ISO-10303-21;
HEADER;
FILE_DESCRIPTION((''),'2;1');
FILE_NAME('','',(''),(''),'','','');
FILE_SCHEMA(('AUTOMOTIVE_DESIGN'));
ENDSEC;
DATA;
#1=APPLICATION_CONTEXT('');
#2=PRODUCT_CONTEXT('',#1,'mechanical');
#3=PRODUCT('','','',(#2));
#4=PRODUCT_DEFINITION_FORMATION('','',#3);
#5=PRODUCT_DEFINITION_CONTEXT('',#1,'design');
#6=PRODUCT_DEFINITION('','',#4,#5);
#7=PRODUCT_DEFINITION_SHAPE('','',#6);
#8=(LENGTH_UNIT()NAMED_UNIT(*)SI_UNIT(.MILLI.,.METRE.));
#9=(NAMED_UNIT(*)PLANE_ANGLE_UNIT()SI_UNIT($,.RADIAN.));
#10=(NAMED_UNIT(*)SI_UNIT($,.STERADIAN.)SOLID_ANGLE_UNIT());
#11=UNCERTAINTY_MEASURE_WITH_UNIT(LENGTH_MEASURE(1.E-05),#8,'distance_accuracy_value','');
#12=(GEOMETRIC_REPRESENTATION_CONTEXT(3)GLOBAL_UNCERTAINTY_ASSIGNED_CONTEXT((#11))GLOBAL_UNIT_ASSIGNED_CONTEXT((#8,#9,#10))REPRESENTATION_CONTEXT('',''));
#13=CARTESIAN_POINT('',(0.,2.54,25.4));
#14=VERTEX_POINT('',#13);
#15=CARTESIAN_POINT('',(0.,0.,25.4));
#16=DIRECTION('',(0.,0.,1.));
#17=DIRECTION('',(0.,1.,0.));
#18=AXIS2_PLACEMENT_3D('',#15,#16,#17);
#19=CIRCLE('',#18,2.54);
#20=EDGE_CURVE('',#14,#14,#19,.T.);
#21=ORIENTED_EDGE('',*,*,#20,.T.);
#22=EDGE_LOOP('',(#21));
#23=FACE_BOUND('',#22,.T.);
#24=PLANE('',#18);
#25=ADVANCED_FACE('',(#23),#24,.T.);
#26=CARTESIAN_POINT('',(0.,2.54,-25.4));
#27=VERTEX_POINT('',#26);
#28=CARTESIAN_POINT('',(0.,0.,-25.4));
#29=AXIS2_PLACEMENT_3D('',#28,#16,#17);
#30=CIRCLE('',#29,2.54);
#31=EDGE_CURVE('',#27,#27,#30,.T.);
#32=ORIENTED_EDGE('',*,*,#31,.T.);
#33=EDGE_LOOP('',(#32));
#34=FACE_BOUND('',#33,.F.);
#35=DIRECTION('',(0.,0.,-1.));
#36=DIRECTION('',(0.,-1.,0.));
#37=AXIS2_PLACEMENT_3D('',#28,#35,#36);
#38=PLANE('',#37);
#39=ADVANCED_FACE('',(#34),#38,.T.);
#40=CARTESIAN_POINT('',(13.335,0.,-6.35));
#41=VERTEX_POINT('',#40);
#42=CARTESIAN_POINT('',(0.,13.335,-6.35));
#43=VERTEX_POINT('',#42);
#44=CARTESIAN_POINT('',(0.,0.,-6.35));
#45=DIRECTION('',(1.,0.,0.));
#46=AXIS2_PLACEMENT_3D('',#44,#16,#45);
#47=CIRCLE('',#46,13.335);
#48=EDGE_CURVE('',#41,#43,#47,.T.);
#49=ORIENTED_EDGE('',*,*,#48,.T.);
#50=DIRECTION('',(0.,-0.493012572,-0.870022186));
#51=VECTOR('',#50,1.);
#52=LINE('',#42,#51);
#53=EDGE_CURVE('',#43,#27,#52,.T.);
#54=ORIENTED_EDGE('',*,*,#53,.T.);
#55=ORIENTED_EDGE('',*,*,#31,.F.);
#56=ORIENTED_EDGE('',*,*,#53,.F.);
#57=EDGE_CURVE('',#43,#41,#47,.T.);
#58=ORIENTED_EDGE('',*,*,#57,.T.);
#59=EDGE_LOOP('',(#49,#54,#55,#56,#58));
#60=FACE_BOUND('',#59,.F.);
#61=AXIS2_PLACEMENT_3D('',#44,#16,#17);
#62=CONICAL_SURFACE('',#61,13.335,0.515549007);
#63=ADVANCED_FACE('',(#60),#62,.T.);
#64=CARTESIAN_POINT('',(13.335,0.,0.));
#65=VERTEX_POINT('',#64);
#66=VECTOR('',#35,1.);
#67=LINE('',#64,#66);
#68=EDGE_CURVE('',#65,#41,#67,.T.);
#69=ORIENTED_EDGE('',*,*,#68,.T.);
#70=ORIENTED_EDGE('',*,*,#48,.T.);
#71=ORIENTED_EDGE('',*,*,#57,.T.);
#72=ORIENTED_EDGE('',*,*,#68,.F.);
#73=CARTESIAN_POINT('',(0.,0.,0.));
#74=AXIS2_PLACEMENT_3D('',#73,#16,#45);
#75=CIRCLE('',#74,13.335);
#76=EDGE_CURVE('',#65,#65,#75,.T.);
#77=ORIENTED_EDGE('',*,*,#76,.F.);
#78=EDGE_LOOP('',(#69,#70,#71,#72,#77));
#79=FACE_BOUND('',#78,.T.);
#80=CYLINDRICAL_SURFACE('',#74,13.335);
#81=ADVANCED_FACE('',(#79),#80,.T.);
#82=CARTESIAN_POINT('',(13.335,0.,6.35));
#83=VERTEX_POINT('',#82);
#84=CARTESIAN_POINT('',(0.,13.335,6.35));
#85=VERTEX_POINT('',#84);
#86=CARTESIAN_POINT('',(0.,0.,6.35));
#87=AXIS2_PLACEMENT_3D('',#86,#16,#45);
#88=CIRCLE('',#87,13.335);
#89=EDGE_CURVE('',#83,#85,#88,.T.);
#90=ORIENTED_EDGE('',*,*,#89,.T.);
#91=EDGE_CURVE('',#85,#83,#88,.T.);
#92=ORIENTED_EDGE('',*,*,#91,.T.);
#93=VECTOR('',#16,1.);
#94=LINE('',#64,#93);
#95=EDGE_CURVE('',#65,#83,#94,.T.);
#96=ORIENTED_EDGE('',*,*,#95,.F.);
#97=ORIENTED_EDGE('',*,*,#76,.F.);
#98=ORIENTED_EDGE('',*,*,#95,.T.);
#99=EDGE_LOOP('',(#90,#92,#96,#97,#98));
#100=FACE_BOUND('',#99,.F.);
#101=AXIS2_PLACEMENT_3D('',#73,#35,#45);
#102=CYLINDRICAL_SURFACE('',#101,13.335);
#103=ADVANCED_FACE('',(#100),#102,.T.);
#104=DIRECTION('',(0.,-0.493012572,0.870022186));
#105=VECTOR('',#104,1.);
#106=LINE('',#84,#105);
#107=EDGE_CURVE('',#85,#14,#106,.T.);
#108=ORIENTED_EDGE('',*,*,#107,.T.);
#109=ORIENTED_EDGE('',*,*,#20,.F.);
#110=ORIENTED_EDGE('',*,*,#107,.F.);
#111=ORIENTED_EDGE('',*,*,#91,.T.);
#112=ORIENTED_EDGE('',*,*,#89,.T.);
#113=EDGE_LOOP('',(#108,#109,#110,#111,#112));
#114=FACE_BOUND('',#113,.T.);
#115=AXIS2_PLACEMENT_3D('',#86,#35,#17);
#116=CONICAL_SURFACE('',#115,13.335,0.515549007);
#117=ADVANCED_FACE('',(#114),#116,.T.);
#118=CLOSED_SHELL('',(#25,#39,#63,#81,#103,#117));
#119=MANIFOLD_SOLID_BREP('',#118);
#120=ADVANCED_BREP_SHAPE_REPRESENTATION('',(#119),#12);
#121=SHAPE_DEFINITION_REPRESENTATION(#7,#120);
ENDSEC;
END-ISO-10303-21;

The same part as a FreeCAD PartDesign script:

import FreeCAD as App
import Part
import Sketcher

V = App.Vector
Q = App.Units.Quantity


def add_polygon(sketch, points):
    """Adds a closed chain of lines whose ends are joined by coincident constraints."""
    first, n = sketch.GeometryCount, len(points)
    for a, b in zip(points, points[1:] + points[:1]):
        sketch.addGeometry(Part.LineSegment(App.Vector(*a, 0), App.Vector(*b, 0)), False)
    for i in range(n):
        sketch.addConstraint(Sketcher.Constraint("Coincident", first + i, 2, first + (i + 1) % n, 1))

doc = App.newDocument("Part")
body = doc.addObject("PartDesign::Body", "Body")

# Sketch on XY plane
sketch1 = body.newObject("Sketcher::SketchObject", "Sketch")
sketch1.AttachmentSupport = (doc.getObject("XY_Plane"), [""])
sketch1.MapMode = "FlatFace"
sketch1.addGeometry(Part.Circle(V(0, 0, 0), V(0, 0, 1), 13), False)
sketch1.addConstraint([
    Sketcher.Constraint("Coincident", 0, 3, -1, 1),
    Sketcher.Constraint("Diameter", 0, Q("1.05 in")),
])
pad1 = body.newObject("PartDesign::Pad", "Pad")
pad1.Profile = sketch1
pad1.Length = Q("0.25 in")

# Sketch on YZ plane
sketch2 = body.newObject("Sketcher::SketchObject", "Sketch001")
sketch2.AttachmentSupport = (doc.getObject("YZ_Plane"), [""])
sketch2.MapMode = "FlatFace"
add_polygon(sketch2, [(0, 25.4), (0, 6.3), (13.3, 6.3), (2.5, 25.4)])  # lines 0-3
sketch2.addConstraint([
    Sketcher.Constraint("Vertical", 0),
    Sketcher.Constraint("Horizontal", 1),
    Sketcher.Constraint("Horizontal", 3),
    Sketcher.Constraint("PointOnObject", 0, 2, -2),
    Sketcher.Constraint("DistanceX", 3, 2, 3, 1, Q("0.1 in")),
    Sketcher.Constraint("DistanceY", -1, 1, 2, 2, Q("1 in")),
    Sketcher.Constraint("DistanceY", 0, 2, 0, 1, Q("0.75 in")),
    Sketcher.Constraint("DistanceX", 1, 1, 1, 2, Q("0.525 in")),
])
revolution = body.newObject("PartDesign::Revolution", "Revolution")
revolution.Profile = sketch2
revolution.ReferenceAxis = (sketch2, ["V_Axis"])
revolution.Angle = 360
body2 = doc.addObject("PartDesign::Body", "Body001")
doc.recompute()

body2.BaseFeature = body
doc.recompute()

mirroring = doc.addObject("Part::Mirroring", "Mirroring")
mirroring.Source = body
mirroring.Base = V(0, 0, 0)
mirroring.Normal = V(0, 0, 1)
body3 = doc.addObject("PartDesign::Body", "Body002")
body3.BaseFeature = mirroring
boolean = body2.newObject("PartDesign::Boolean", "Boolean")
boolean.Type = "Fuse"
boolean.addObjects([body3])
doc.recompute()
mirroring.Visibility = False

doc.recompute()
